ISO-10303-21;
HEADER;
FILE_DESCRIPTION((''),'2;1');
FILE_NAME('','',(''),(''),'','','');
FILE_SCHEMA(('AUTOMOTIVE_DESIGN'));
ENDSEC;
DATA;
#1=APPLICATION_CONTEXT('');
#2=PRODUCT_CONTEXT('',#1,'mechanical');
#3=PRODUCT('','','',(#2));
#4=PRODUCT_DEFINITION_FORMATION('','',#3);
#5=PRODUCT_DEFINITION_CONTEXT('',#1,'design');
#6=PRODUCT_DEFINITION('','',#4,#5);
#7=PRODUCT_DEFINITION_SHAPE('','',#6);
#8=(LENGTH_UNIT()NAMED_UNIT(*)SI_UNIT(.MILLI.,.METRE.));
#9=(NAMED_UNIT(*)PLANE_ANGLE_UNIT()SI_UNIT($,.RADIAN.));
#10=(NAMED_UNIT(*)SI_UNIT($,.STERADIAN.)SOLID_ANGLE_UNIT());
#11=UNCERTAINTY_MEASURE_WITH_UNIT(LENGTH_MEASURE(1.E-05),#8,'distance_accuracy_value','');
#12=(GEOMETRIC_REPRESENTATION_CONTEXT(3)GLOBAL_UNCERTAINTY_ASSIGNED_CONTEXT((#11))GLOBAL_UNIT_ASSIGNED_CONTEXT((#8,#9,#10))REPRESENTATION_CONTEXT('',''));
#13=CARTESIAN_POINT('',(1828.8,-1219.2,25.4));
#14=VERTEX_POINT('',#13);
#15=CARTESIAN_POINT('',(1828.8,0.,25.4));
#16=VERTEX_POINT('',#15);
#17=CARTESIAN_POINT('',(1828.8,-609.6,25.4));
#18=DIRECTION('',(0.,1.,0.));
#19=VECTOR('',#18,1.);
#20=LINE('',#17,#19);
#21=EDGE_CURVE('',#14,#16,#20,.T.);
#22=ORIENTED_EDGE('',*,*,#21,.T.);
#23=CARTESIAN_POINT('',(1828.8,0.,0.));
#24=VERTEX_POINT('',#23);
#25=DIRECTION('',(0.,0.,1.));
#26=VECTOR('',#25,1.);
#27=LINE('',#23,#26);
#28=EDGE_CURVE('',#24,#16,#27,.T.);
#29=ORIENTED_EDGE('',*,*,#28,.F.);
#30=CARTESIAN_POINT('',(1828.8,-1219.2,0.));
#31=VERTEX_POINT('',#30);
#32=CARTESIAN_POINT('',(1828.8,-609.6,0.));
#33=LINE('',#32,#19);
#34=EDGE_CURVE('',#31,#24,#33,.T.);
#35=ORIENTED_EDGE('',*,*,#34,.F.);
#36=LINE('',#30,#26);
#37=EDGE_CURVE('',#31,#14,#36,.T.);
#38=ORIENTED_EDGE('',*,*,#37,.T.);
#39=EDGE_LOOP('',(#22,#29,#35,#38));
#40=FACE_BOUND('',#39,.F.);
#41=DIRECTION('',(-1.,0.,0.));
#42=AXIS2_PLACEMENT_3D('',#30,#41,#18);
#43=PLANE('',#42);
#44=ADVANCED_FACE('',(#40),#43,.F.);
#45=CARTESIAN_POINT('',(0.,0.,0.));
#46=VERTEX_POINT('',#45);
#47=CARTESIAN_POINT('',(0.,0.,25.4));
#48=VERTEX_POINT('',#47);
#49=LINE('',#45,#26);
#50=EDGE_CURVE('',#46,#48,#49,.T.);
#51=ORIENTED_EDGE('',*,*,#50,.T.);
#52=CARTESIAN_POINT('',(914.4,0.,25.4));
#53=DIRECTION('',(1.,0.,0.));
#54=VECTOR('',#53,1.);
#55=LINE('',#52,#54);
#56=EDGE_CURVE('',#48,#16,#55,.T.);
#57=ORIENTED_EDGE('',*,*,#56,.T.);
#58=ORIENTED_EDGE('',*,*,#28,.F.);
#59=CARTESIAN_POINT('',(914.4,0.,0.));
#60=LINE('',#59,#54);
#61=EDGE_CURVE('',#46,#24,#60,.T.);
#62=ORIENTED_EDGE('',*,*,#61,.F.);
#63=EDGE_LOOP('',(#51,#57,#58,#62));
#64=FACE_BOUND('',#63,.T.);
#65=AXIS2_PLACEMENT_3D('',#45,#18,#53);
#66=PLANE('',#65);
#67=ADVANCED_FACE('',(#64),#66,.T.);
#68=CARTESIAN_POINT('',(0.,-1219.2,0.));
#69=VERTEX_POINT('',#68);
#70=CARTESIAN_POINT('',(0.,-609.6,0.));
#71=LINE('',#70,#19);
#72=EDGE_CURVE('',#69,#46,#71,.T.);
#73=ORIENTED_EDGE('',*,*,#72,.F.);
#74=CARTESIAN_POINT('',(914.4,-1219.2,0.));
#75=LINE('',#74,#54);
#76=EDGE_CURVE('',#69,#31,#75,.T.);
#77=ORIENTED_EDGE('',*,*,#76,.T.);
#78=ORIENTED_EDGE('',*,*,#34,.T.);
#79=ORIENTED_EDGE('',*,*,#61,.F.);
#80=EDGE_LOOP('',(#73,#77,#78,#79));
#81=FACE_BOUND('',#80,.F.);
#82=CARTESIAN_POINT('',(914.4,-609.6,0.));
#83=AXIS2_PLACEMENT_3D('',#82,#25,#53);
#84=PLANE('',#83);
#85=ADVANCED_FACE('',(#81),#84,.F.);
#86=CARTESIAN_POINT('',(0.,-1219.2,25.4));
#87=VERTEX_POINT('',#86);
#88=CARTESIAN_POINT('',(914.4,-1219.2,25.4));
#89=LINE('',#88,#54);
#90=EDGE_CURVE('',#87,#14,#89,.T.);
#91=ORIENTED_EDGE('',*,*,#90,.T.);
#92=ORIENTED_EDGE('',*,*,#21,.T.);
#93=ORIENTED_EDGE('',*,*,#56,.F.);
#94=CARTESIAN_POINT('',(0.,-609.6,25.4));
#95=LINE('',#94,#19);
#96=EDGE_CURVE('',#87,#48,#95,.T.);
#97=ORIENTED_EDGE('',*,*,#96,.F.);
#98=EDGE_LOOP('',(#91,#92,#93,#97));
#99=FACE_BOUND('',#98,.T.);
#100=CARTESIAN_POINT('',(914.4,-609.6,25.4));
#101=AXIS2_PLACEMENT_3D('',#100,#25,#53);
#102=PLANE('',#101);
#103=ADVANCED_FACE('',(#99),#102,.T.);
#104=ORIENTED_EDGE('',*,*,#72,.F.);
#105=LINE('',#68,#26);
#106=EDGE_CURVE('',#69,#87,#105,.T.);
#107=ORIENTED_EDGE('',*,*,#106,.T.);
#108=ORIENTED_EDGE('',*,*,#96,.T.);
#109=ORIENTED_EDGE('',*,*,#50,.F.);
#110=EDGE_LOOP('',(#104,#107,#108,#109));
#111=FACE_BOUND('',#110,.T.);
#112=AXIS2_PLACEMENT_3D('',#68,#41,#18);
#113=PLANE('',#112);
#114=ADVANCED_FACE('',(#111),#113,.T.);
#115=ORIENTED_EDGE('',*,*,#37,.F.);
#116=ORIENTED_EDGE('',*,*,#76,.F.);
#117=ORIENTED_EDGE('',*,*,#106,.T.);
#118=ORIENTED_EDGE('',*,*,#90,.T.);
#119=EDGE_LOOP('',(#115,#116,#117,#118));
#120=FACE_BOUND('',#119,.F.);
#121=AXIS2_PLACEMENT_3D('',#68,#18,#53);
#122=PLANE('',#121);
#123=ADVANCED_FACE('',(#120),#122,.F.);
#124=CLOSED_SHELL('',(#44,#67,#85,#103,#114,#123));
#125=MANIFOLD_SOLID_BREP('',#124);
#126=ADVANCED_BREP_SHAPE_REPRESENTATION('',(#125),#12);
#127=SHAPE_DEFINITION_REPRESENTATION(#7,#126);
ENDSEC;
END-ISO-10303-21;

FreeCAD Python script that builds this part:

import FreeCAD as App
import Part
import Sketcher

V = App.Vector
Q = App.Units.Quantity

doc = App.newDocument("Part")
body = doc.addObject("PartDesign::Body", "Body")

# Sketch on XY plane
sketch1 = body.newObject("Sketcher::SketchObject", "Sketch")
sketch1.AttachmentSupport = (doc.getObject("XY_Plane"), [""])
sketch1.MapMode = "FlatFace"
sketch1.addGeometry([
    Part.LineSegment(V(0, 0, 0), V(0, -1219, 0)),
    Part.LineSegment(V(0, -1219, 0), V(1829, -1219, 0)),
    Part.LineSegment(V(1829, -1219, 0), V(1829, 0, 0)),
    Part.LineSegment(V(1829, 0, 0), V(0, 0, 0)),
], False)
sketch1.addConstraint([
    Sketcher.Constraint("Coincident", 0, 2, 1, 1),
    Sketcher.Constraint("Coincident", 1, 2, 2, 1),
    Sketcher.Constraint("Coincident", 2, 2, 3, 1),
    Sketcher.Constraint("Coincident", 3, 2, 0, 1),
    Sketcher.Constraint("Vertical", 0),
    Sketcher.Constraint("Horizontal", 1),
    Sketcher.Constraint("Vertical", 2),
    Sketcher.Constraint("Horizontal", 3),
    Sketcher.Constraint("Coincident", 3, 2, -1, 1),
    Sketcher.Constraint("DistanceX", 1, 1, 1, 2, Q("72 in")),
    Sketcher.Constraint("DistanceY", 0, 2, 0, 1, Q("48 in")),
])
pad1 = body.newObject("PartDesign::Pad", "Pad")
pad1.Profile = sketch1
pad1.Length = Q("1 in")

doc.recompute()
